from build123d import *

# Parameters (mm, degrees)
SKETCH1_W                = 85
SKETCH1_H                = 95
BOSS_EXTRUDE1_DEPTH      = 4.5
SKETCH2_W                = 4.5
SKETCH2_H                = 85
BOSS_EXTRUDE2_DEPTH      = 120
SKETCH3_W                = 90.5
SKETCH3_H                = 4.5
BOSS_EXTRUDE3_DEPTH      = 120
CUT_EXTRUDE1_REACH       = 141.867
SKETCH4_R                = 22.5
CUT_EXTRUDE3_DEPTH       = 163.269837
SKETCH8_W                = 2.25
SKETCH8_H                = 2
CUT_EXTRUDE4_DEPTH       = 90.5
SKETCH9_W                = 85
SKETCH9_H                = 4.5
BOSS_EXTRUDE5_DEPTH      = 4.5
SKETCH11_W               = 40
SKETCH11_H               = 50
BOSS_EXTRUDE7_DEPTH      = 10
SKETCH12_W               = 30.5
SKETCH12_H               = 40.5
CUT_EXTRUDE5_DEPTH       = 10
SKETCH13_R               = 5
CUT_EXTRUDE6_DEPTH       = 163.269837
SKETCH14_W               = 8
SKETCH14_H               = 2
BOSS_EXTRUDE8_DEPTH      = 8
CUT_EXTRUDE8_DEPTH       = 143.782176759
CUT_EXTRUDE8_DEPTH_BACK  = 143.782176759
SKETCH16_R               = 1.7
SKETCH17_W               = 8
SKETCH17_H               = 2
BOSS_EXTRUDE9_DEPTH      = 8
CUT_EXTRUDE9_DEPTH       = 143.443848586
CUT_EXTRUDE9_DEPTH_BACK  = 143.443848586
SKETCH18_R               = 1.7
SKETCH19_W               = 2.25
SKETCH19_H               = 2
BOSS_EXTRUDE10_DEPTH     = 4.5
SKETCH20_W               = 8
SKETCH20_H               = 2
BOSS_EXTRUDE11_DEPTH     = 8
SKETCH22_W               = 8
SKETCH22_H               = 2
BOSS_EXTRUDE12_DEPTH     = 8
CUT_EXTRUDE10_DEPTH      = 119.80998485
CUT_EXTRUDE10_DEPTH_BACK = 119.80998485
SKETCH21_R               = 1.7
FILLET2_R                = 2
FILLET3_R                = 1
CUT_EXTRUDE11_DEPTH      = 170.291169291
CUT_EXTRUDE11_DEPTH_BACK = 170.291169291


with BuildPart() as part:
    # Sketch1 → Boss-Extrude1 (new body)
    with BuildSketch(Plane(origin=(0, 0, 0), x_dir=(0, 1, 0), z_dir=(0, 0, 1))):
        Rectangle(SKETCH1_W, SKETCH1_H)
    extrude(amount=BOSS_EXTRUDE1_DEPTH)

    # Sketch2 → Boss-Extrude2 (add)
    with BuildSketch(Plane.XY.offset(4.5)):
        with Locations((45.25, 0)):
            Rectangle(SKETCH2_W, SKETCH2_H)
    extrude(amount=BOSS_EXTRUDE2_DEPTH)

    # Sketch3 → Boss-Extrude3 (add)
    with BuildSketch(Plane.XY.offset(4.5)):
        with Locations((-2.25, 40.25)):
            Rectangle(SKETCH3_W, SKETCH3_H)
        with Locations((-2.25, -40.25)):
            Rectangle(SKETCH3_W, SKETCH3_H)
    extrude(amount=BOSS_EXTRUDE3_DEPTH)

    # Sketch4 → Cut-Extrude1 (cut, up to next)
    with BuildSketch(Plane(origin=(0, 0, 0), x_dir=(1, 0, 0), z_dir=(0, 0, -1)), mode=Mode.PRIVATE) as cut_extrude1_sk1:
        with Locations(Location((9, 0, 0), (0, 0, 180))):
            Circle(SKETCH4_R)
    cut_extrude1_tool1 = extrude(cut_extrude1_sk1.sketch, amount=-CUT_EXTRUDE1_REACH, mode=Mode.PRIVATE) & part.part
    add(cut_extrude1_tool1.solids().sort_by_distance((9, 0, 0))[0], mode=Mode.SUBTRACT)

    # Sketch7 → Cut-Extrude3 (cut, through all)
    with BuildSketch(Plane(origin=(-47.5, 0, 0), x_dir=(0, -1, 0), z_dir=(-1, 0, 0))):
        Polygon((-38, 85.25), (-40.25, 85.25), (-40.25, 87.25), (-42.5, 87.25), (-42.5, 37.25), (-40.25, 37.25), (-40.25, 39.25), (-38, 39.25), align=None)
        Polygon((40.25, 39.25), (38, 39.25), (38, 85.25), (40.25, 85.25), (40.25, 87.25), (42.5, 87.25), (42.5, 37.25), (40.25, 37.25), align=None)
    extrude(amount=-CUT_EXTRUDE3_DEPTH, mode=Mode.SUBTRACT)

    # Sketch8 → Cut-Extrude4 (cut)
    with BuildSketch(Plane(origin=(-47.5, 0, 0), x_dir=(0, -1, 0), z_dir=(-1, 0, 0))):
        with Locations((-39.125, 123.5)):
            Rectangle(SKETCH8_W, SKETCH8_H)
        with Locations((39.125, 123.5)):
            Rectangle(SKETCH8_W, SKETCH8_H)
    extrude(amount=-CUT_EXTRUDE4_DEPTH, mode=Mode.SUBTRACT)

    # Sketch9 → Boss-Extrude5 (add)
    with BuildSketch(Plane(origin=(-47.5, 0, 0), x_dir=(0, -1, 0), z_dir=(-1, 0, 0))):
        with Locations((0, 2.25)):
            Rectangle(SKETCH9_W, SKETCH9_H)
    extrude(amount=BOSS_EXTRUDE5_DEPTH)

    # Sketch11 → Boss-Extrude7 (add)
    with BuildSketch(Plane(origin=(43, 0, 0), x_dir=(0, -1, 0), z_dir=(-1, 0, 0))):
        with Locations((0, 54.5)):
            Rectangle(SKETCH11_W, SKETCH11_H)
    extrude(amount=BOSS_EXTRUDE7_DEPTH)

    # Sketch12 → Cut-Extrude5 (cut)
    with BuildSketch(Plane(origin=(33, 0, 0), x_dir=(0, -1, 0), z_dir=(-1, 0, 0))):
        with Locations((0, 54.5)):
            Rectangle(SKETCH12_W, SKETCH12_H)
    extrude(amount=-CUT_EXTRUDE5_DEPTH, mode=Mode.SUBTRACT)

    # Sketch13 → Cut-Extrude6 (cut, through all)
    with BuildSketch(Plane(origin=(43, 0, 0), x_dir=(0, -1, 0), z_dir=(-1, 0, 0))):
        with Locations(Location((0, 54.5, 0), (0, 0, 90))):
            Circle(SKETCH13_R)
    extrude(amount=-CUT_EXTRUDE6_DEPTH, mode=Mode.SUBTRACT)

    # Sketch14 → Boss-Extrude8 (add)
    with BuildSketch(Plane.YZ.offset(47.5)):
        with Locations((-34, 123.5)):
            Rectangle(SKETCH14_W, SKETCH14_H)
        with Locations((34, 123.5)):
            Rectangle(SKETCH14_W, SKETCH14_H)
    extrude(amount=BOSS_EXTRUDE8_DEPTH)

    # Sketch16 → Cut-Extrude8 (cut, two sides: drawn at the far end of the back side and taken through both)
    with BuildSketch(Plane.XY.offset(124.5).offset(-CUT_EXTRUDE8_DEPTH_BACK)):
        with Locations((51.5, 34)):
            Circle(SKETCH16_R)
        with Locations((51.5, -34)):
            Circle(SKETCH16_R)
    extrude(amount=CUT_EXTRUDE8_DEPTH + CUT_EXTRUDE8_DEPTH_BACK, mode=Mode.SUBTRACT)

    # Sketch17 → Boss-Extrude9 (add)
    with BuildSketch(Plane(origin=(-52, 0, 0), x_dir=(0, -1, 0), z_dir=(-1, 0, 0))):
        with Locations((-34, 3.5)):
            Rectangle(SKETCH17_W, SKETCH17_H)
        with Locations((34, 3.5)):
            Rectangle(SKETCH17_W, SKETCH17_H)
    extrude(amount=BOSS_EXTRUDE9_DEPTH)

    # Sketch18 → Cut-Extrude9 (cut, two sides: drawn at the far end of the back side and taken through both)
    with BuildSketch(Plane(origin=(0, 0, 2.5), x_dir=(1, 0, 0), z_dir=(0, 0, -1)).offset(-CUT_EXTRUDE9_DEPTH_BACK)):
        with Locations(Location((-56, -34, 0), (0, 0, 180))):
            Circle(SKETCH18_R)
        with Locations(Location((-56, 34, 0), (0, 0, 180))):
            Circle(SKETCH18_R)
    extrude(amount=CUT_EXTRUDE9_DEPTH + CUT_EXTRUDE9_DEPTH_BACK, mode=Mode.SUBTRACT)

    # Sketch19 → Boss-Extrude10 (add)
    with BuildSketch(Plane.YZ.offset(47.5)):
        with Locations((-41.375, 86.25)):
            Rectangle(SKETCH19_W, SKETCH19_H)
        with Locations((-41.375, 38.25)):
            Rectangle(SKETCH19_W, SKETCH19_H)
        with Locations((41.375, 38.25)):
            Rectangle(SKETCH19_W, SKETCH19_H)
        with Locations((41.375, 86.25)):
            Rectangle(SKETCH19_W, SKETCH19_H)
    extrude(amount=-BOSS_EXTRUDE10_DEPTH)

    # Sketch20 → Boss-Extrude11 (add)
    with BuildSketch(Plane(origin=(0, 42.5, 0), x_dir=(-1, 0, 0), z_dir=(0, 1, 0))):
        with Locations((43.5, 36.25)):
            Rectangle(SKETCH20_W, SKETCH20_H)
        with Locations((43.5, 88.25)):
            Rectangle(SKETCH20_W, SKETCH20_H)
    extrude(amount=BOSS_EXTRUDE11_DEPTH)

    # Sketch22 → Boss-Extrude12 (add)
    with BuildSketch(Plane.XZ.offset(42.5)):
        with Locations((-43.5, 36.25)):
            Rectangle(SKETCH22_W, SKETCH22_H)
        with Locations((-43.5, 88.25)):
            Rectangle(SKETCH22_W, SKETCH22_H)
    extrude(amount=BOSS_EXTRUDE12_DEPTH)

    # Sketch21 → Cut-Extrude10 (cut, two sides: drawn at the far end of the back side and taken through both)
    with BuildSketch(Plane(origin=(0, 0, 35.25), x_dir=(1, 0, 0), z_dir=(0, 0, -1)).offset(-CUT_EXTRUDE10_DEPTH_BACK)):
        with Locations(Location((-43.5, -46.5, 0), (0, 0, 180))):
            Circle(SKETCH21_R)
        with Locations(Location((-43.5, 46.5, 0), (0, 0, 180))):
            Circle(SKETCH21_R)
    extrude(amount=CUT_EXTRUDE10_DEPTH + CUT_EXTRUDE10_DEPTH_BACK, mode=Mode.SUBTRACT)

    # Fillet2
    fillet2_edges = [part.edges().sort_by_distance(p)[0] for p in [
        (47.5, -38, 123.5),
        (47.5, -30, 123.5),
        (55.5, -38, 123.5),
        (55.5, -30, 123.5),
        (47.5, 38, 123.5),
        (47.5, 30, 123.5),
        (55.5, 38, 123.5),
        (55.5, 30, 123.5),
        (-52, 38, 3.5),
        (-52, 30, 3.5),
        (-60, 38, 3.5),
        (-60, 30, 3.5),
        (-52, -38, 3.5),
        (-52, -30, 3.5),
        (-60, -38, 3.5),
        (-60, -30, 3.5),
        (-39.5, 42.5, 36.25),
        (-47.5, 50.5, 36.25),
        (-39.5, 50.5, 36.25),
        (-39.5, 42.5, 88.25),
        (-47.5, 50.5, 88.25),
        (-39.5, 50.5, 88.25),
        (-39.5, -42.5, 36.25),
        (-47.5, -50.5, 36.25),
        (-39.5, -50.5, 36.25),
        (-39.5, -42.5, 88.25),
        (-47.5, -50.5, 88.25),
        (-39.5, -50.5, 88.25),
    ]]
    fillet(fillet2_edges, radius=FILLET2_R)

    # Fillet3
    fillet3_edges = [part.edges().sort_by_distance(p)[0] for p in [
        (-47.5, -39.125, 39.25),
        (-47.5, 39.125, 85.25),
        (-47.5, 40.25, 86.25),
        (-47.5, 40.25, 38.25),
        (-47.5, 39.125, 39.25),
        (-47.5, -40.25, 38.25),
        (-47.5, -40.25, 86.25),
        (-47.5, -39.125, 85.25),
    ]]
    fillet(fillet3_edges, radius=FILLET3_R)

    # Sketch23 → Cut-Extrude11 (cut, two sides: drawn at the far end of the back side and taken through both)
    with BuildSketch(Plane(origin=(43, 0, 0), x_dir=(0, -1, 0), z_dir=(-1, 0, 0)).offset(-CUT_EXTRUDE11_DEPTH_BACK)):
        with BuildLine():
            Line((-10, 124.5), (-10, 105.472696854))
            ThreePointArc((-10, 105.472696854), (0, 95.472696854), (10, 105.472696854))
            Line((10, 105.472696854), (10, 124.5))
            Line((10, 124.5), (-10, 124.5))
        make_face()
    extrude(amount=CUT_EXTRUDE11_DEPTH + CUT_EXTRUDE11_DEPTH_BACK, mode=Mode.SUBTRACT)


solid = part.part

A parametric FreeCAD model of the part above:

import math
import FreeCAD as App
import Part
import Sketcher


def edges_at(feature, points):
    """Names of the edges that pass closest to the given points."""
    edges = feature.Shape.Edges
    near = lambda p: min(range(len(edges)), key=lambda i: edges[i].distToShape(Part.Vertex(*p))[0])
    return sorted({f"Edge{near(p) + 1}" for p in points})

doc = App.newDocument("Part")
body = doc.addObject("PartDesign::Body", "Body")

# Sketch on XY plane
sketch1 = doc.addObject("Sketcher::SketchObject", "Sketch")
body.addObject(sketch1)
sketch1.AttachmentSupport = (doc.XY_Plane, [""])
sketch1.MapMode = "FlatFace"
sketch1.addGeometry([
    Part.LineSegment(App.Vector(-48, -42, 0), App.Vector(48, -42, 0)),
    Part.LineSegment(App.Vector(48, -42, 0), App.Vector(48, 42, 0)),
    Part.LineSegment(App.Vector(48, 42, 0), App.Vector(-48, 42, 0)),
    Part.LineSegment(App.Vector(-48, 42, 0), App.Vector(-48, -42, 0)),
], False)
sketch1.addConstraint([
    Sketcher.Constraint("Coincident", 0, 2, 1, 1),
    Sketcher.Constraint("Coincident", 1, 2, 2, 1),
    Sketcher.Constraint("Coincident", 2, 2, 3, 1),
    Sketcher.Constraint("Coincident", 3, 2, 0, 1),
    Sketcher.Constraint("Horizontal", 0),
    Sketcher.Constraint("Vertical", 1),
    Sketcher.Constraint("Horizontal", 2),
    Sketcher.Constraint("Vertical", 3),
    Sketcher.Constraint("Symmetric", 0, 2, 2, 2, -1, 1),
    Sketcher.Constraint("DistanceX", 0, 1, 0, 2, 95.0),
    Sketcher.Constraint("DistanceY", 1, 1, 1, 2, 85.0),
])
pad1 = doc.addObject("PartDesign::Pad", "Pad")
body.addObject(pad1)
pad1.Profile = sketch1
pad1.Length = 4.5

# Sketch on XY plane
sketch2 = doc.addObject("Sketcher::SketchObject", "Sketch001")
body.addObject(sketch2)
sketch2.AttachmentSupport = (doc.XY_Plane, [""])
sketch2.MapMode = "FlatFace"
sketch2.AttachmentOffset = App.Placement(App.Vector(0, 0, 4.5), App.Rotation())
sketch2.addGeometry([
    Part.LineSegment(App.Vector(43, 42.5, 0), App.Vector(43, -42.5, 0)),
    Part.LineSegment(App.Vector(43, -42.5, 0), App.Vector(47.5, -42.5, 0)),
    Part.LineSegment(App.Vector(47.5, -42.5, 0), App.Vector(47.5, 42.5, 0)),
    Part.LineSegment(App.Vector(47.5, 42.5, 0), App.Vector(43, 42.5, 0)),
], False)
sketch2.addConstraint([
    Sketcher.Constraint("Coincident", 0, 2, 1, 1),
    Sketcher.Constraint("Coincident", 1, 2, 2, 1),
    Sketcher.Constraint("Coincident", 2, 2, 3, 1),
    Sketcher.Constraint("Coincident", 3, 2, 0, 1),
    Sketcher.Constraint("Vertical", 0),
    Sketcher.Constraint("Horizontal", 1),
    Sketcher.Constraint("Vertical", 2),
    Sketcher.Constraint("Horizontal", 3),
    Sketcher.Constraint("DistanceY", 0, 2, 0, 1, 85.0),
    Sketcher.Constraint("DistanceX", 1, 1, 1, 2, 4.5),
    Sketcher.Constraint("DistanceX", -1, 1, 0, 2, 43.0),
    Sketcher.Constraint("DistanceY", 0, 2, -1, 1, 42.5),
])
pad2 = doc.addObject("PartDesign::Pad", "Pad001")
body.addObject(pad2)
pad2.Profile = sketch2
pad2.Length = 120

# Sketch on XY plane
sketch3 = doc.addObject("Sketcher::SketchObject", "Sketch002")
body.addObject(sketch3)
sketch3.AttachmentSupport = (doc.XY_Plane, [""])
sketch3.MapMode = "FlatFace"
sketch3.AttachmentOffset = App.Placement(App.Vector(0, 0, 4.5), App.Rotation())
sketch3.addGeometry([
    Part.LineSegment(App.Vector(-47.5, 42.5, 0), App.Vector(-47.5, 38, 0)),  # 0
    Part.LineSegment(App.Vector(-47.5, 38, 0), App.Vector(43, 38, 0)),  # 1
    Part.LineSegment(App.Vector(43, 38, 0), App.Vector(43, 42.5, 0)),  # 2
    Part.LineSegment(App.Vector(43, 42.5, 0), App.Vector(-47.5, 42.5, 0)),  # 3
    Part.LineSegment(App.Vector(-47.5, -38, 0), App.Vector(-47.5, -42.5, 0)),  # 4
    Part.LineSegment(App.Vector(-47.5, -42.5, 0), App.Vector(43, -42.5, 0)),  # 5
    Part.LineSegment(App.Vector(43, -42.5, 0), App.Vector(43, -38, 0)),  # 6
    Part.LineSegment(App.Vector(43, -38, 0), App.Vector(-47.5, -38, 0)),  # 7
], False)
sketch3.addConstraint([
    Sketcher.Constraint("Coincident", 0, 2, 1, 1),
    Sketcher.Constraint("Coincident", 1, 2, 2, 1),
    Sketcher.Constraint("Coincident", 2, 2, 3, 1),
    Sketcher.Constraint("Coincident", 3, 2, 0, 1),
    Sketcher.Constraint("Coincident", 4, 2, 5, 1),
    Sketcher.Constraint("Coincident", 5, 2, 6, 1),
    Sketcher.Constraint("Coincident", 6, 2, 7, 1),
    Sketcher.Constraint("Coincident", 7, 2, 4, 1),
    Sketcher.Constraint("Vertical", 0),
    Sketcher.Constraint("Horizontal", 1),
    Sketcher.Constraint("Vertical", 2),
    Sketcher.Constraint("Horizontal", 3),
    Sketcher.Constraint("Vertical", 4),
    Sketcher.Constraint("Horizontal", 5),
    Sketcher.Constraint("Vertical", 6),
    Sketcher.Constraint("Horizontal", 7),
    Sketcher.Constraint("Symmetric", 3, 2, 4, 2, -1),
    Sketcher.Constraint("Symmetric", 1, 2, 6, 2, -1),
    Sketcher.Constraint("DistanceX", 1, 1, 1, 2, 90.5),
    Sketcher.Constraint("DistanceY", 0, 2, 0, 1, 4.5),
    Sketcher.Constraint("DistanceY", -1, 1, 0, 2, 38.0),
    Sketcher.Constraint("DistanceX", -1, 1, 1, 2, 43.0),
])
pad3 = doc.addObject("PartDesign::Pad", "Pad002")
body.addObject(pad3)
pad3.Profile = sketch3
pad3.Length = 120

# Sketch on XY plane
sketch4 = doc.addObject("Sketcher::SketchObject", "Sketch003")
body.addObject(sketch4)
sketch4.AttachmentSupport = (doc.XY_Plane, [""])
sketch4.MapMode = "FlatFace"
sketch4.addGeometry(Part.Circle(App.Vector(9, 0, 0), App.Vector(0, 0, 1), 22), False)
sketch4.addConstraint([
    Sketcher.Constraint("PointOnObject", 0, 3, -1),
    Sketcher.Constraint("Diameter", 0, 45.0),
    Sketcher.Constraint("DistanceX", -1, 1, 0, 3, 9.0),
])
pocket1 = doc.addObject("PartDesign::Pocket", "Pocket")
body.addObject(pocket1)
pocket1.Profile = sketch4
pocket1.Type = "UpToFirst"
pocket1.Reversed = True

# Sketch on YZ plane
sketch5 = doc.addObject("Sketcher::SketchObject", "Sketch004")
body.addObject(sketch5)
sketch5.AttachmentSupport = (doc.YZ_Plane, [""])
sketch5.MapMode = "FlatFace"
sketch5.AttachmentOffset = App.Placement(App.Vector(0, 0, -47.5), App.Rotation())
sketch5.addGeometry([
    Part.LineSegment(App.Vector(38, 85.2, 0), App.Vector(40.2, 85.2, 0)),  # 0
    Part.LineSegment(App.Vector(40.2, 85.2, 0), App.Vector(40.2, 87.2, 0)),  # 1
    Part.LineSegment(App.Vector(40.2, 87.2, 0), App.Vector(42.5, 87.2, 0)),  # 2
    Part.LineSegment(App.Vector(42.5, 87.2, 0), App.Vector(42.5, 37.2, 0)),  # 3
    Part.LineSegment(App.Vector(42.5, 37.2, 0), App.Vector(40.2, 37.2, 0)),  # 4
    Part.LineSegment(App.Vector(40.2, 37.2, 0), App.Vector(40.2, 39.2, 0)),  # 5
    Part.LineSegment(App.Vector(40.2, 39.2, 0), App.Vector(38, 39.2, 0)),  # 6
    Part.LineSegment(App.Vector(38, 39.2, 0), App.Vector(38, 85.2, 0)),  # 7
    Part.LineSegment(App.Vector(-38, 39.2, 0), App.Vector(-40.2, 39.2, 0)),  # 8
    Part.LineSegment(App.Vector(-40.2, 39.2, 0), App.Vector(-40.2, 37.2, 0)),  # 9
    Part.LineSegment(App.Vector(-40.2, 37.2, 0), App.Vector(-42.5, 37.2, 0)),  # 10
    Part.LineSegment(App.Vector(-42.5, 37.2, 0), App.Vector(-42.5, 87.2, 0)),  # 11
    Part.LineSegment(App.Vector(-42.5, 87.2, 0), App.Vector(-40.2, 87.2, 0)),  # 12
    Part.LineSegment(App.Vector(-40.2, 87.2, 0), App.Vector(-40.2, 85.2, 0)),  # 13
    Part.LineSegment(App.Vector(-40.2, 85.2, 0), App.Vector(-38, 85.2, 0)),  # 14
    Part.LineSegment(App.Vector(-38, 85.2, 0), App.Vector(-38, 39.2, 0)),  # 15
], False)
sketch5.addConstraint([
    Sketcher.Constraint("Coincident", 0, 2, 1, 1),
    Sketcher.Constraint("Coincident", 1, 2, 2, 1),
    Sketcher.Constraint("Coincident", 2, 2, 3, 1),
    Sketcher.Constraint("Coincident", 3, 2, 4, 1),
    Sketcher.Constraint("Coincident", 4, 2, 5, 1),
    Sketcher.Constraint("Coincident", 5, 2, 6, 1),
    Sketcher.Constraint("Coincident", 6, 2, 7, 1),
    Sketcher.Constraint("Coincident", 7, 2, 0, 1),
    Sketcher.Constraint("Coincident", 8, 2, 9, 1),
    Sketcher.Constraint("Coincident", 9, 2, 10, 1),
    Sketcher.Constraint("Coincident", 10, 2, 11, 1),
    Sketcher.Constraint("Coincident", 11, 2, 12, 1),
    Sketcher.Constraint("Coincident", 12, 2, 13, 1),
    Sketcher.Constraint("Coincident", 13, 2, 14, 1),
    Sketcher.Constraint("Coincident", 14, 2, 15, 1),
    Sketcher.Constraint("Coincident", 15, 2, 8, 1),
    Sketcher.Constraint("Horizontal", 0),
    Sketcher.Constraint("Vertical", 1),
    Sketcher.Constraint("Horizontal", 2),
    Sketcher.Constraint("Vertical", 3),
    Sketcher.Constraint("Horizontal", 4),
    Sketcher.Constraint("Vertical", 5),
    Sketcher.Constraint("Horizontal", 6),
    Sketcher.Constraint("Vertical", 7),
    Sketcher.Constraint("Horizontal", 8),
    Sketcher.Constraint("Vertical", 9),
    Sketcher.Constraint("Horizontal", 10),
    Sketcher.Constraint("Vertical", 11),
    Sketcher.Constraint("Horizontal", 12),
    Sketcher.Constraint("Vertical", 13),
    Sketcher.Constraint("Horizontal", 14),
    Sketcher.Constraint("Vertical", 15),
    Sketcher.Constraint("Symmetric", 5, 2, 8, 2, -2),
    Sketcher.Constraint("Symmetric", 3, 2, 10, 2, -2),
    Sketcher.Constraint("Symmetric", 1, 2, 12, 2, -2),
    Sketcher.Constraint("Symmetric", 7, 2, 14, 2, -2),
    Sketcher.Constraint("Vertical", 1, 2, 4, 2),
    Sketcher.Constraint("Equal", 0, 2),
    Sketcher.Constraint("Equal", 1, 5),
    Sketcher.Constraint("DistanceY", 1, 1, 1, 2, 2.0),
    Sketcher.Constraint("DistanceY", 3, 2, 3, 1, 50.0),
    Sketcher.Constraint("DistanceX", -1, 1, 6, 2, 38.0),
    Sketcher.Constraint("DistanceX", 0, 1, 0, 2, 2.25),
    Sketcher.Constraint("DistanceY", -1, 1, 0, 2, 85.25),
])
pocket2 = doc.addObject("PartDesign::Pocket", "Pocket001")
body.addObject(pocket2)
pocket2.Profile = sketch5
pocket2.Type = "ThroughAll"
pocket2.Reversed = True

# Sketch on YZ plane
sketch6 = doc.addObject("Sketcher::SketchObject", "Sketch005")
body.addObject(sketch6)
sketch6.AttachmentSupport = (doc.YZ_Plane, [""])
sketch6.MapMode = "FlatFace"
sketch6.AttachmentOffset = App.Placement(App.Vector(0, 0, -47.5), App.Rotation())
sketch6.addGeometry([
    Part.LineSegment(App.Vector(40.2, 124.5, 0), App.Vector(40.2, 122.5, 0)),  # 0
    Part.LineSegment(App.Vector(40.2, 122.5, 0), App.Vector(38, 122.5, 0)),  # 1
    Part.LineSegment(App.Vector(38, 122.5, 0), App.Vector(38, 124.5, 0)),  # 2
    Part.LineSegment(App.Vector(38, 124.5, 0), App.Vector(40.2, 124.5, 0)),  # 3
    Part.LineSegment(App.Vector(-38, 124.5, 0), App.Vector(-38, 122.5, 0)),  # 4
    Part.LineSegment(App.Vector(-38, 122.5, 0), App.Vector(-40.2, 122.5, 0)),  # 5
    Part.LineSegment(App.Vector(-40.2, 122.5, 0), App.Vector(-40.2, 124.5, 0)),  # 6
    Part.LineSegment(App.Vector(-40.2, 124.5, 0), App.Vector(-38, 124.5, 0)),  # 7
], False)
sketch6.addConstraint([
    Sketcher.Constraint("Coincident", 0, 2, 1, 1),
    Sketcher.Constraint("Coincident", 1, 2, 2, 1),
    Sketcher.Constraint("Coincident", 2, 2, 3, 1),
    Sketcher.Constraint("Coincident", 3, 2, 0, 1),
    Sketcher.Constraint("Coincident", 4, 2, 5, 1),
    Sketcher.Constraint("Coincident", 5, 2, 6, 1),
    Sketcher.Constraint("Coincident", 6, 2, 7, 1),
    Sketcher.Constraint("Coincident", 7, 2, 4, 1),
    Sketcher.Constraint("Vertical", 0),
    Sketcher.Constraint("Horizontal", 1),
    Sketcher.Constraint("Vertical", 2),
    Sketcher.Constraint("Horizontal", 3),
    Sketcher.Constraint("Vertical", 4),
    Sketcher.Constraint("Horizontal", 5),
    Sketcher.Constraint("Vertical", 6),
    Sketcher.Constraint("Horizontal", 7),
    Sketcher.Constraint("Symmetric", 1, 2, 4, 2, -2),
    Sketcher.Constraint("Symmetric", 3, 2, 6, 2, -2),
    Sketcher.Constraint("DistanceY", 0, 2, 0, 1, 2.0),
    Sketcher.Constraint("DistanceX", -1, 1, 1, 2, 38.0),
    Sketcher.Constraint("DistanceX", 1, 2, 1, 1, 2.25),
    Sketcher.Constraint("DistanceY", -1, 1, 0, 2, 122.5),
])
pocket3 = doc.addObject("PartDesign::Pocket", "Pocket002")
body.addObject(pocket3)
pocket3.Profile = sketch6
pocket3.Length = 90.5
pocket3.Reversed = True

# Sketch on YZ plane
sketch7 = doc.addObject("Sketcher::SketchObject", "Sketch006")
body.addObject(sketch7)
sketch7.AttachmentSupport = (doc.YZ_Plane, [""])
sketch7.MapMode = "FlatFace"
sketch7.AttachmentOffset = App.Placement(App.Vector(0, 0, -47.5), App.Rotation())
sketch7.addGeometry([
    Part.LineSegment(App.Vector(42.5, 4.5, 0), App.Vector(42.5, 0, 0)),
    Part.LineSegment(App.Vector(42.5, 0, 0), App.Vector(-42.5, 0, 0)),
    Part.LineSegment(App.Vector(-42.5, 0, 0), App.Vector(-42.5, 4.5, 0)),
    Part.LineSegment(App.Vector(-42.5, 4.5, 0), App.Vector(42.5, 4.5, 0)),
], False)
sketch7.addConstraint([
    Sketcher.Constraint("Coincident", 0, 2, 1, 1),
    Sketcher.Constraint("Coincident", 1, 2, 2, 1),
    Sketcher.Constraint("Coincident", 2, 2, 3, 1),
    Sketcher.Constraint("Coincident", 3, 2, 0, 1),
    Sketcher.Constraint("Vertical", 0),
    Sketcher.Constraint("Horizontal", 1),
    Sketcher.Constraint("Vertical", 2),
    Sketcher.Constraint("Horizontal", 3),
    Sketcher.Constraint("Symmetric", 0, 2, 1, 2, -1, 1),
    Sketcher.Constraint("DistanceX", 1, 2, 1, 1, 85.0),
    Sketcher.Constraint("DistanceY", 0, 2, 0, 1, 4.5),
])
pad4 = doc.addObject("PartDesign::Pad", "Pad003")
body.addObject(pad4)
pad4.Profile = sketch7
pad4.Length = 4.5
pad4.Reversed = True

# Sketch on YZ plane
sketch8 = doc.addObject("Sketcher::SketchObject", "Sketch007")
body.addObject(sketch8)
sketch8.AttachmentSupport = (doc.YZ_Plane, [""])
sketch8.MapMode = "FlatFace"
sketch8.AttachmentOffset = App.Placement(App.Vector(0, 0, 43), App.Rotation())
sketch8.addGeometry([
    Part.LineSegment(App.Vector(20, 80, 0), App.Vector(20, 30, 0)),
    Part.LineSegment(App.Vector(20, 30, 0), App.Vector(-20, 30, 0)),
    Part.LineSegment(App.Vector(-20, 30, 0), App.Vector(-20, 80, 0)),
    Part.LineSegment(App.Vector(-20, 80, 0), App.Vector(20, 80, 0)),
], False)
sketch8.addConstraint([
    Sketcher.Constraint("Coincident", 0, 2, 1, 1),
    Sketcher.Constraint("Coincident", 1, 2, 2, 1),
    Sketcher.Constraint("Coincident", 2, 2, 3, 1),
    Sketcher.Constraint("Coincident", 3, 2, 0, 1),
    Sketcher.Constraint("Vertical", 0),
    Sketcher.Constraint("Horizontal", 1),
    Sketcher.Constraint("Vertical", 2),
    Sketcher.Constraint("Horizontal", 3),
    Sketcher.Constraint("DistanceX", 1, 2, 1, 1, 40.0),
    Sketcher.Constraint("DistanceY", 0, 2, 0, 1, 50.0),
    Sketcher.Constraint("DistanceX", -1, 1, 0, 2, 20.0),
    Sketcher.Constraint("DistanceY", -1, 1, 0, 2, 29.5),
])
pad5 = doc.addObject("PartDesign::Pad", "Pad004")
body.addObject(pad5)
pad5.Profile = sketch8
pad5.Length = 10
pad5.Reversed = True

# Sketch on YZ plane
sketch9 = doc.addObject("Sketcher::SketchObject", "Sketch008")
body.addObject(sketch9)
sketch9.AttachmentSupport = (doc.YZ_Plane, [""])
sketch9.MapMode = "FlatFace"
sketch9.AttachmentOffset = App.Placement(App.Vector(0, 0, 33), App.Rotation())
sketch9.addGeometry([
    Part.LineSegment(App.Vector(15, 75, 0), App.Vector(15, 34, 0)),
    Part.LineSegment(App.Vector(15, 34, 0), App.Vector(-15, 34, 0)),
    Part.LineSegment(App.Vector(-15, 34, 0), App.Vector(-15, 75, 0)),
    Part.LineSegment(App.Vector(-15, 75, 0), App.Vector(15, 75, 0)),
], False)
sketch9.addConstraint([
    Sketcher.Constraint("Coincident", 0, 2, 1, 1),
    Sketcher.Constraint("Coincident", 1, 2, 2, 1),
    Sketcher.Constraint("Coincident", 2, 2, 3, 1),
    Sketcher.Constraint("Coincident", 3, 2, 0, 1),
    Sketcher.Constraint("Vertical", 0),
    Sketcher.Constraint("Horizontal", 1),
    Sketcher.Constraint("Vertical", 2),
    Sketcher.Constraint("Horizontal", 3),
    Sketcher.Constraint("DistanceX", 1, 2, 1, 1, 30.5),
    Sketcher.Constraint("DistanceY", 0, 2, 0, 1, 40.5),
    Sketcher.Constraint("DistanceX", -1, 1, 0, 2, 15.25),
    Sketcher.Constraint("DistanceY", -1, 1, 0, 2, 34.25),
])
pocket4 = doc.addObject("PartDesign::Pocket", "Pocket003")
body.addObject(pocket4)
pocket4.Profile = sketch9
pocket4.Length = 10
pocket4.Reversed = True

# Sketch on YZ plane
sketch10 = doc.addObject("Sketcher::SketchObject", "Sketch009")
body.addObject(sketch10)
sketch10.AttachmentSupport = (doc.YZ_Plane, [""])
sketch10.MapMode = "FlatFace"
sketch10.AttachmentOffset = App.Placement(App.Vector(0, 0, 43), App.Rotation())
sketch10.addGeometry(Part.Circle(App.Vector(0, 54, 0), App.Vector(0, 0, 1), 5), False)
sketch10.addConstraint([
    Sketcher.Constraint("PointOnObject", 0, 3, -2),
    Sketcher.Constraint("Diameter", 0, 10.0),
    Sketcher.Constraint("DistanceY", -1, 1, 0, 3, 54.5),
])
pocket5 = doc.addObject("PartDesign::Pocket", "Pocket004")
body.addObject(pocket5)
pocket5.Profile = sketch10
pocket5.Type = "ThroughAll"
pocket5.Reversed = True

# Sketch on YZ plane
sketch11 = doc.addObject("Sketcher::SketchObject", "Sketch010")
body.addObject(sketch11)
sketch11.AttachmentSupport = (doc.YZ_Plane, [""])
sketch11.MapMode = "FlatFace"
sketch11.AttachmentOffset = App.Placement(App.Vector(0, 0, 47.5), App.Rotation())
sketch11.addGeometry([
    Part.LineSegment(App.Vector(-38, 124.5, 0), App.Vector(-38, 122.5, 0)),  # 0
    Part.LineSegment(App.Vector(-38, 122.5, 0), App.Vector(-30, 122.5, 0)),  # 1
    Part.LineSegment(App.Vector(-30, 122.5, 0), App.Vector(-30, 124.5, 0)),  # 2
    Part.LineSegment(App.Vector(-30, 124.5, 0), App.Vector(-38, 124.5, 0)),  # 3
    Part.LineSegment(App.Vector(30, 124.5, 0), App.Vector(30, 122.5, 0)),  # 4
    Part.LineSegment(App.Vector(30, 122.5, 0), App.Vector(38, 122.5, 0)),  # 5
    Part.LineSegment(App.Vector(38, 122.5, 0), App.Vector(38, 124.5, 0)),  # 6
    Part.LineSegment(App.Vector(38, 124.5, 0), App.Vector(30, 124.5, 0)),  # 7
], False)
sketch11.addConstraint([
    Sketcher.Constraint("Coincident", 0, 2, 1, 1),
    Sketcher.Constraint("Coincident", 1, 2, 2, 1),
    Sketcher.Constraint("Coincident", 2, 2, 3, 1),
    Sketcher.Constraint("Coincident", 3, 2, 0, 1),
    Sketcher.Constraint("Coincident", 4, 2, 5, 1),
    Sketcher.Constraint("Coincident", 5, 2, 6, 1),
    Sketcher.Constraint("Coincident", 6, 2, 7, 1),
    Sketcher.Constraint("Coincident", 7, 2, 4, 1),
    Sketcher.Constraint("Vertical", 0),
    Sketcher.Constraint("Horizontal", 1),
    Sketcher.Constraint("Vertical", 2),
    Sketcher.Constraint("Horizontal", 3),
    Sketcher.Constraint("Vertical", 4),
    Sketcher.Constraint("Horizontal", 5),
    Sketcher.Constraint("Vertical", 6),
    Sketcher.Constraint("Horizontal", 7),
    Sketcher.Constraint("Symmetric", 1, 2, 4, 2, -2),
    Sketcher.Constraint("Symmetric", 3, 2, 6, 2, -2),
    Sketcher.Constraint("DistanceX", 1, 1, 1, 2, 8.0),
    Sketcher.Constraint("DistanceY", 0, 2, 0, 1, 2.0),
    Sketcher.Constraint("DistanceX", 0, 2, -1, 1, 38.0),
    Sketcher.Constraint("DistanceY", -1, 1, 0, 2, 122.5),
])
pad6 = doc.addObject("PartDesign::Pad", "Pad005")
body.addObject(pad6)
pad6.Profile = sketch11
pad6.Length = 8

# Sketch on XY plane
sketch12 = doc.addObject("Sketcher::SketchObject", "Sketch011")
body.addObject(sketch12)
sketch12.AttachmentSupport = (doc.XY_Plane, [""])
sketch12.MapMode = "FlatFace"
sketch12.AttachmentOffset = App.Placement(App.Vector(0, 0, 124.5), App.Rotation())
sketch12.addGeometry([
    Part.Circle(App.Vector(51.5, 34, 0), App.Vector(0, 0, 1), 1.7),
    Part.Circle(App.Vector(51.5, -34, 0), App.Vector(0, 0, 1), 1.7),
], False)
sketch12.addConstraint([
    Sketcher.Constraint("Equal", 0, 1),
    Sketcher.Constraint("Symmetric", 0, 3, 1, 3, -1),
    Sketcher.Constraint("Diameter", 0, 3.4),
    Sketcher.Constraint("DistanceY", -1, 1, 0, 3, 34.0),
    Sketcher.Constraint("DistanceX", -1, 1, 0, 3, 51.5),
])
pocket6 = doc.addObject("PartDesign::Pocket", "Pocket005")
body.addObject(pocket6)
pocket6.Profile = sketch12
pocket6.Type = "ThroughAll"
pocket6.Midplane = True

# Sketch on YZ plane
sketch13 = doc.addObject("Sketcher::SketchObject", "Sketch012")
body.addObject(sketch13)
sketch13.AttachmentSupport = (doc.YZ_Plane, [""])
sketch13.MapMode = "FlatFace"
sketch13.AttachmentOffset = App.Placement(App.Vector(0, 0, -52), App.Rotation())
sketch13.addGeometry([
    Part.LineSegment(App.Vector(38, 4.5, 0), App.Vector(38, 2.5, 0)),  # 0
    Part.LineSegment(App.Vector(38, 2.5, 0), App.Vector(30, 2.5, 0)),  # 1
    Part.LineSegment(App.Vector(30, 2.5, 0), App.Vector(30, 4.5, 0)),  # 2
    Part.LineSegment(App.Vector(30, 4.5, 0), App.Vector(38, 4.5, 0)),  # 3
    Part.LineSegment(App.Vector(-30, 4.5, 0), App.Vector(-30, 2.5, 0)),  # 4
    Part.LineSegment(App.Vector(-30, 2.5, 0), App.Vector(-38, 2.5, 0)),  # 5
    Part.LineSegment(App.Vector(-38, 2.5, 0), App.Vector(-38, 4.5, 0)),  # 6
    Part.LineSegment(App.Vector(-38, 4.5, 0), App.Vector(-30, 4.5, 0)),  # 7
], False)
sketch13.addConstraint([
    Sketcher.Constraint("Coincident", 0, 2, 1, 1),
    Sketcher.Constraint("Coincident", 1, 2, 2, 1),
    Sketcher.Constraint("Coincident", 2, 2, 3, 1),
    Sketcher.Constraint("Coincident", 3, 2, 0, 1),
    Sketcher.Constraint("Coincident", 4, 2, 5, 1),
    Sketcher.Constraint("Coincident", 5, 2, 6, 1),
    Sketcher.Constraint("Coincident", 6, 2, 7, 1),
    Sketcher.Constraint("Coincident", 7, 2, 4, 1),
    Sketcher.Constraint("Vertical", 0),
    Sketcher.Constraint("Horizontal", 1),
    Sketcher.Constraint("Vertical", 2),
    Sketcher.Constraint("Horizontal", 3),
    Sketcher.Constraint("Vertical", 4),
    Sketcher.Constraint("Horizontal", 5),
    Sketcher.Constraint("Vertical", 6),
    Sketcher.Constraint("Horizontal", 7),
    Sketcher.Constraint("Symmetric", 1, 2, 4, 2, -2),
    Sketcher.Constraint("Symmetric", 3, 2, 6, 2, -2),
    Sketcher.Constraint("DistanceX", 1, 2, 1, 1, 8.0),
    Sketcher.Constraint("DistanceY", 0, 2, 0, 1, 2.0),
    Sketcher.Constraint("DistanceX", -1, 1, 0, 2, 38.0),
    Sketcher.Constraint("DistanceY", -1, 1, 0, 2, 2.5),
])
pad7 = doc.addObject("PartDesign::Pad", "Pad006")
body.addObject(pad7)
pad7.Profile = sketch13
pad7.Length = 8
pad7.Reversed = True

# Sketch on XY plane
sketch14 = doc.addObject("Sketcher::SketchObject", "Sketch013")
body.addObject(sketch14)
sketch14.AttachmentSupport = (doc.XY_Plane, [""])
sketch14.MapMode = "FlatFace"
sketch14.AttachmentOffset = App.Placement(App.Vector(0, 0, 2.5), App.Rotation())
sketch14.addGeometry([
    Part.Circle(App.Vector(-56, 34, 0), App.Vector(0, 0, 1), 1.7),
    Part.Circle(App.Vector(-56, -34, 0), App.Vector(0, 0, 1), 1.7),
], False)
sketch14.addConstraint([
    Sketcher.Constraint("Equal", 0, 1),
    Sketcher.Constraint("Symmetric", 0, 3, 1, 3, -1),
    Sketcher.Constraint("Diameter", 0, 3.4),
    Sketcher.Constraint("DistanceX", 0, 3, -1, 1, 56.0),
    Sketcher.Constraint("DistanceY", -1, 1, 0, 3, 34.0),
])
pocket7 = doc.addObject("PartDesign::Pocket", "Pocket006")
body.addObject(pocket7)
pocket7.Profile = sketch14
pocket7.Type = "ThroughAll"
pocket7.Midplane = True

# Sketch on YZ plane
sketch15 = doc.addObject("Sketcher::SketchObject", "Sketch014")
body.addObject(sketch15)
sketch15.AttachmentSupport = (doc.YZ_Plane, [""])
sketch15.MapMode = "FlatFace"
sketch15.AttachmentOffset = App.Placement(App.Vector(0, 0, 47.5), App.Rotation())
sketch15.addGeometry([
    Part.LineSegment(App.Vector(-42.5, 87.2, 0), App.Vector(-42.5, 85.2, 0)),  # 0
    Part.LineSegment(App.Vector(-42.5, 85.2, 0), App.Vector(-40.2, 85.2, 0)),  # 1
    Part.LineSegment(App.Vector(-40.2, 85.2, 0), App.Vector(-40.2, 87.2, 0)),  # 2
    Part.LineSegment(App.Vector(-40.2, 87.2, 0), App.Vector(-42.5, 87.2, 0)),  # 3
    Part.LineSegment(App.Vector(-42.5, 39.2, 0), App.Vector(-42.5, 37.2, 0)),  # 4
    Part.LineSegment(App.Vector(-42.5, 37.2, 0), App.Vector(-40.2, 37.2, 0)),  # 5
    Part.LineSegment(App.Vector(-40.2, 37.2, 0), App.Vector(-40.2, 39.2, 0)),  # 6
    Part.LineSegment(App.Vector(-40.2, 39.2, 0), App.Vector(-42.5, 39.2, 0)),  # 7
    Part.LineSegment(App.Vector(40.2, 39.2, 0), App.Vector(40.2, 37.2, 0)),  # 8
    Part.LineSegment(App.Vector(40.2, 37.2, 0), App.Vector(42.5, 37.2, 0)),  # 9
    Part.LineSegment(App.Vector(42.5, 37.2, 0), App.Vector(42.5, 39.2, 0)),  # 10
    Part.LineSegment(App.Vector(42.5, 39.2, 0), App.Vector(40.2, 39.2, 0)),  # 11
    Part.LineSegment(App.Vector(40.2, 87.2, 0), App.Vector(40.2, 85.2, 0)),  # 12
    Part.LineSegment(App.Vector(40.2, 85.2, 0), App.Vector(42.5, 85.2, 0)),  # 13
    Part.LineSegment(App.Vector(42.5, 85.2, 0), App.Vector(42.5, 87.2, 0)),  # 14
    Part.LineSegment(App.Vector(42.5, 87.2, 0), App.Vector(40.2, 87.2, 0)),  # 15
], False)
sketch15.addConstraint([
    Sketcher.Constraint("Coincident", 0, 2, 1, 1),
    Sketcher.Constraint("Coincident", 1, 2, 2, 1),
    Sketcher.Constraint("Coincident", 2, 2, 3, 1),
    Sketcher.Constraint("Coincident", 3, 2, 0, 1),
    Sketcher.Constraint("Coincident", 4, 2, 5, 1),
    Sketcher.Constraint("Coincident", 5, 2, 6, 1),
    Sketcher.Constraint("Coincident", 6, 2, 7, 1),
    Sketcher.Constraint("Coincident", 7, 2, 4, 1),
    Sketcher.Constraint("Coincident", 8, 2, 9, 1),
    Sketcher.Constraint("Coincident", 9, 2, 10, 1),
    Sketcher.Constraint("Coincident", 10, 2, 11, 1),
    Sketcher.Constraint("Coincident", 11, 2, 8, 1),
    Sketcher.Constraint("Coincident", 12, 2, 13, 1),
    Sketcher.Constraint("Coincident", 13, 2, 14, 1),
    Sketcher.Constraint("Coincident", 14, 2, 15, 1),
    Sketcher.Constraint("Coincident", 15, 2, 12, 1),
    Sketcher.Constraint("Vertical", 0),
    Sketcher.Constraint("Horizontal", 1),
    Sketcher.Constraint("Vertical", 2),
    Sketcher.Constraint("Horizontal", 3),
    Sketcher.Constraint("Vertical", 4),
    Sketcher.Constraint("Horizontal", 5),
    Sketcher.Constraint("Vertical", 6),
    Sketcher.Constraint("Horizontal", 7),
    Sketcher.Constraint("Vertical", 8),
    Sketcher.Constraint("Horizontal", 9),
    Sketcher.Constraint("Vertical", 10),
    Sketcher.Constraint("Horizontal", 11),
    Sketcher.Constraint("Vertical", 12),
    Sketcher.Constraint("Horizontal", 13),
    Sketcher.Constraint("Vertical", 14),
    Sketcher.Constraint("Horizontal", 15),
    Sketcher.Constraint("Symmetric", 5, 2, 8, 2, -2),
    Sketcher.Constraint("Symmetric", 7, 2, 10, 2, -2),
    Sketcher.Constraint("Symmetric", 1, 2, 12, 2, -2),
    Sketcher.Constraint("Symmetric", 3, 2, 14, 2, -2),
    Sketcher.Constraint("Vertical", 3, 2, 4, 2),
    Sketcher.Constraint("Vertical", 2, 2, 5, 2),
    Sketcher.Constraint("Equal", 2, 4),
    Sketcher.Constraint("DistanceY", 0, 2, 0, 1, 2.0),
    Sketcher.Constraint("DistanceY", 4, 2, 0, 2, 48.0),
    Sketcher.Constraint("DistanceX", 4, 2, 9, 2, 85.0),
    Sketcher.Constraint("DistanceX", 1, 1, 1, 2, 2.25),
    Sketcher.Constraint("DistanceY", -1, 1, 0, 2, 85.25),
])
pad8 = doc.addObject("PartDesign::Pad", "Pad007")
body.addObject(pad8)
pad8.Profile = sketch15
pad8.Length = 4.5
pad8.Reversed = True

# Sketch on XZ plane
sketch16 = doc.addObject("Sketcher::SketchObject", "Sketch015")
body.addObject(sketch16)
sketch16.AttachmentSupport = (doc.XZ_Plane, [""])
sketch16.MapMode = "FlatFace"
sketch16.AttachmentOffset = App.Placement(App.Vector(0, 0, -42.5), App.Rotation())
sketch16.addGeometry([
    Part.LineSegment(App.Vector(-39.5, 37.2, 0), App.Vector(-39.5, 35.2, 0)),  # 0
    Part.LineSegment(App.Vector(-39.5, 35.2, 0), App.Vector(-47.5, 35.2, 0)),  # 1
    Part.LineSegment(App.Vector(-47.5, 35.2, 0), App.Vector(-47.5, 37.2, 0)),  # 2
    Part.LineSegment(App.Vector(-47.5, 37.2, 0), App.Vector(-39.5, 37.2, 0)),  # 3
    Part.LineSegment(App.Vector(-39.5, 89.2, 0), App.Vector(-39.5, 87.2, 0)),  # 4
    Part.LineSegment(App.Vector(-39.5, 87.2, 0), App.Vector(-47.5, 87.2, 0)),  # 5
    Part.LineSegment(App.Vector(-47.5, 87.2, 0), App.Vector(-47.5, 89.2, 0)),  # 6
    Part.LineSegment(App.Vector(-47.5, 89.2, 0), App.Vector(-39.5, 89.2, 0)),  # 7
], False)
sketch16.addConstraint([
    Sketcher.Constraint("Coincident", 0, 2, 1, 1),
    Sketcher.Constraint("Coincident", 1, 2, 2, 1),
    Sketcher.Constraint("Coincident", 2, 2, 3, 1),
    Sketcher.Constraint("Coincident", 3, 2, 0, 1),
    Sketcher.Constraint("Coincident", 4, 2, 5, 1),
    Sketcher.Constraint("Coincident", 5, 2, 6, 1),
    Sketcher.Constraint("Coincident", 6, 2, 7, 1),
    Sketcher.Constraint("Coincident", 7, 2, 4, 1),
    Sketcher.Constraint("Vertical", 0),
    Sketcher.Constraint("Horizontal", 1),
    Sketcher.Constraint("Vertical", 2),
    Sketcher.Constraint("Horizontal", 3),
    Sketcher.Constraint("Vertical", 4),
    Sketcher.Constraint("Horizontal", 5),
    Sketcher.Constraint("Vertical", 6),
    Sketcher.Constraint("Horizontal", 7),
    Sketcher.Constraint("Vertical", 3, 2, 4, 2),
    Sketcher.Constraint("Vertical", 2, 2, 5, 2),
    Sketcher.Constraint("Equal", 2, 4),
    Sketcher.Constraint("DistanceX", 1, 2, 1, 1, 8.0),
    Sketcher.Constraint("DistanceY", 0, 2, 0, 1, 2.0),
    Sketcher.Constraint("DistanceY", 3, 2, 4, 2, 50.0),
    Sketcher.Constraint("DistanceX", 0, 2, -1, 1, 39.5),
    Sketcher.Constraint("DistanceY", -1, 1, 0, 2, 35.25),
])
pad9 = doc.addObject("PartDesign::Pad", "Pad008")
body.addObject(pad9)
pad9.Profile = sketch16
pad9.Length = 8
pad9.Reversed = True

# Sketch on XZ plane
sketch17 = doc.addObject("Sketcher::SketchObject", "Sketch016")
body.addObject(sketch17)
sketch17.AttachmentSupport = (doc.XZ_Plane, [""])
sketch17.MapMode = "FlatFace"
sketch17.AttachmentOffset = App.Placement(App.Vector(0, 0, 42.5), App.Rotation())
sketch17.addGeometry([
    Part.LineSegment(App.Vector(-47.5, 37.2, 0), App.Vector(-47.5, 35.2, 0)),  # 0
    Part.LineSegment(App.Vector(-47.5, 35.2, 0), App.Vector(-39.5, 35.2, 0)),  # 1
    Part.LineSegment(App.Vector(-39.5, 35.2, 0), App.Vector(-39.5, 37.2, 0)),  # 2
    Part.LineSegment(App.Vector(-39.5, 37.2, 0), App.Vector(-47.5, 37.2, 0)),  # 3
    Part.LineSegment(App.Vector(-47.5, 89.2, 0), App.Vector(-47.5, 87.2, 0)),  # 4
    Part.LineSegment(App.Vector(-47.5, 87.2, 0), App.Vector(-39.5, 87.2, 0)),  # 5
    Part.LineSegment(App.Vector(-39.5, 87.2, 0), App.Vector(-39.5, 89.2, 0)),  # 6
    Part.LineSegment(App.Vector(-39.5, 89.2, 0), App.Vector(-47.5, 89.2, 0)),  # 7
], False)
sketch17.addConstraint([
    Sketcher.Constraint("Coincident", 0, 2, 1, 1),
    Sketcher.Constraint("Coincident", 1, 2, 2, 1),
    Sketcher.Constraint("Coincident", 2, 2, 3, 1),
    Sketcher.Constraint("Coincident", 3, 2, 0, 1),
    Sketcher.Constraint("Coincident", 4, 2, 5, 1),
    Sketcher.Constraint("Coincident", 5, 2, 6, 1),
    Sketcher.Constraint("Coincident", 6, 2, 7, 1),
    Sketcher.Constraint("Coincident", 7, 2, 4, 1),
    Sketcher.Constraint("Vertical", 0),
    Sketcher.Constraint("Horizontal", 1),
    Sketcher.Constraint("Vertical", 2),
    Sketcher.Constraint("Horizontal", 3),
    Sketcher.Constraint("Vertical", 4),
    Sketcher.Constraint("Horizontal", 5),
    Sketcher.Constraint("Vertical", 6),
    Sketcher.Constraint("Horizontal", 7),
    Sketcher.Constraint("Vertical", 3, 2, 4, 2),
    Sketcher.Constraint("Vertical", 2, 2, 5, 2),
    Sketcher.Constraint("Equal", 2, 4),
    Sketcher.Constraint("DistanceX", 1, 1, 1, 2, 8.0),
    Sketcher.Constraint("DistanceY", 0, 2, 0, 1, 2.0),
    Sketcher.Constraint("DistanceY", 3, 2, 4, 2, 50.0),
    Sketcher.Constraint("DistanceX", 0, 2, -1, 1, 47.5),
    Sketcher.Constraint("DistanceY", -1, 1, 0, 2, 35.25),
])
pad10 = doc.addObject("PartDesign::Pad", "Pad009")
body.addObject(pad10)
pad10.Profile = sketch17
pad10.Length = 8

# Sketch on XY plane
sketch18 = doc.addObject("Sketcher::SketchObject", "Sketch017")
body.addObject(sketch18)
sketch18.AttachmentSupport = (doc.XY_Plane, [""])
sketch18.MapMode = "FlatFace"
sketch18.AttachmentOffset = App.Placement(App.Vector(0, 0, 35.25), App.Rotation())
sketch18.addGeometry([
    Part.Circle(App.Vector(-43.5, 46.5, 0), App.Vector(0, 0, 1), 1.7),
    Part.Circle(App.Vector(-43.5, -46.5, 0), App.Vector(0, 0, 1), 1.7),
], False)
sketch18.addConstraint([
    Sketcher.Constraint("Equal", 0, 1),
    Sketcher.Constraint("Symmetric", 0, 3, 1, 3, -1),
    Sketcher.Constraint("Diameter", 0, 3.4),
    Sketcher.Constraint("DistanceY", 1, 3, 0, 3, 93.0),
    Sketcher.Constraint("DistanceX", 0, 3, -1, 1, 43.5),
])
pocket8 = doc.addObject("PartDesign::Pocket", "Pocket007")
body.addObject(pocket8)
pocket8.Profile = sketch18
pocket8.Type = "ThroughAll"
pocket8.Midplane = True
doc.recompute()

fillet = doc.addObject("PartDesign::Fillet", "Fillet")
body.addObject(fillet)
fillet.Base = (pocket8, edges_at(pocket8, [
    (47.5, -38, 123.5),
    (47.5, -30, 123.5),
    (55.5, -38, 123.5),
    (55.5, -30, 123.5),
    (47.5, 38, 123.5),
    (47.5, 30, 123.5),
    (55.5, 38, 123.5),
    (55.5, 30, 123.5),
    (-52, 38, 3.5),
    (-52, 30, 3.5),
    (-60, 38, 3.5),
    (-60, 30, 3.5),
    (-52, -38, 3.5),
    (-52, -30, 3.5),
    (-60, -38, 3.5),
    (-60, -30, 3.5),
    (-39.5, 42.5, 36.25),
    (-47.5, 50.5, 36.25),
    (-39.5, 50.5, 36.25),
    (-39.5, 42.5, 88.25),
    (-47.5, 50.5, 88.25),
    (-39.5, 50.5, 88.25),
    (-39.5, -42.5, 36.25),
    (-47.5, -50.5, 36.25),
    (-39.5, -50.5, 36.25),
    (-39.5, -42.5, 88.25),
    (-47.5, -50.5, 88.25),
    (-39.5, -50.5, 88.25),
]))
fillet.Radius = 2
doc.recompute()

fillet2 = doc.addObject("PartDesign::Fillet", "Fillet001")
body.addObject(fillet2)
fillet2.Base = (fillet, edges_at(fillet, [
    (-47.5, -39.125, 39.25),
    (-47.5, 39.125, 85.25),
    (-47.5, 40.25, 86.25),
    (-47.5, 40.25, 38.25),
    (-47.5, 39.125, 39.25),
    (-47.5, -40.25, 38.25),
    (-47.5, -40.25, 86.25),
    (-47.5, -39.125, 85.25),
]))
fillet2.Radius = 1

# Sketch on YZ plane
sketch19 = doc.addObject("Sketcher::SketchObject", "Sketch018")
body.addObject(sketch19)
sketch19.AttachmentSupport = (doc.YZ_Plane, [""])
sketch19.MapMode = "FlatFace"
sketch19.AttachmentOffset = App.Placement(App.Vector(0, 0, 43), App.Rotation())
sketch19.addGeometry([
    Part.LineSegment(App.Vector(10, 124, 0), App.Vector(10, 105, 0)),
    Part.ArcOfCircle(Part.Circle(App.Vector(0, 105, 0), App.Vector(0, 0, 1), 10), math.radians(180), math.radians(360)),
    Part.LineSegment(App.Vector(-10, 105, 0), App.Vector(-10, 124, 0)),
    Part.LineSegment(App.Vector(-10, 124, 0), App.Vector(10, 124, 0)),
], False)
sketch19.addConstraint([
    Sketcher.Constraint("Tangent", 0, 2, 1, 2),
    Sketcher.Constraint("Tangent", 1, 1, 2, 1),
    Sketcher.Constraint("Coincident", 2, 2, 3, 1),
    Sketcher.Constraint("Coincident", 3, 2, 0, 1),
    Sketcher.Constraint("Vertical", 0),
    Sketcher.Constraint("Vertical", 2),
    Sketcher.Constraint("Horizontal", 3),
    Sketcher.Constraint("PointOnObject", 1, 3, -2),
    Sketcher.Constraint("Radius", 1, 10.0),
    Sketcher.Constraint("DistanceY", -1, 1, 2, 2, 124.5),
    Sketcher.Constraint("DistanceY", 0, 2, 0, 1, 19.027303),
])
pocket9 = doc.addObject("PartDesign::Pocket", "Pocket008")
body.addObject(pocket9)
pocket9.Profile = sketch19
pocket9.Type = "ThroughAll"
pocket9.Midplane = True

doc.recompute()
